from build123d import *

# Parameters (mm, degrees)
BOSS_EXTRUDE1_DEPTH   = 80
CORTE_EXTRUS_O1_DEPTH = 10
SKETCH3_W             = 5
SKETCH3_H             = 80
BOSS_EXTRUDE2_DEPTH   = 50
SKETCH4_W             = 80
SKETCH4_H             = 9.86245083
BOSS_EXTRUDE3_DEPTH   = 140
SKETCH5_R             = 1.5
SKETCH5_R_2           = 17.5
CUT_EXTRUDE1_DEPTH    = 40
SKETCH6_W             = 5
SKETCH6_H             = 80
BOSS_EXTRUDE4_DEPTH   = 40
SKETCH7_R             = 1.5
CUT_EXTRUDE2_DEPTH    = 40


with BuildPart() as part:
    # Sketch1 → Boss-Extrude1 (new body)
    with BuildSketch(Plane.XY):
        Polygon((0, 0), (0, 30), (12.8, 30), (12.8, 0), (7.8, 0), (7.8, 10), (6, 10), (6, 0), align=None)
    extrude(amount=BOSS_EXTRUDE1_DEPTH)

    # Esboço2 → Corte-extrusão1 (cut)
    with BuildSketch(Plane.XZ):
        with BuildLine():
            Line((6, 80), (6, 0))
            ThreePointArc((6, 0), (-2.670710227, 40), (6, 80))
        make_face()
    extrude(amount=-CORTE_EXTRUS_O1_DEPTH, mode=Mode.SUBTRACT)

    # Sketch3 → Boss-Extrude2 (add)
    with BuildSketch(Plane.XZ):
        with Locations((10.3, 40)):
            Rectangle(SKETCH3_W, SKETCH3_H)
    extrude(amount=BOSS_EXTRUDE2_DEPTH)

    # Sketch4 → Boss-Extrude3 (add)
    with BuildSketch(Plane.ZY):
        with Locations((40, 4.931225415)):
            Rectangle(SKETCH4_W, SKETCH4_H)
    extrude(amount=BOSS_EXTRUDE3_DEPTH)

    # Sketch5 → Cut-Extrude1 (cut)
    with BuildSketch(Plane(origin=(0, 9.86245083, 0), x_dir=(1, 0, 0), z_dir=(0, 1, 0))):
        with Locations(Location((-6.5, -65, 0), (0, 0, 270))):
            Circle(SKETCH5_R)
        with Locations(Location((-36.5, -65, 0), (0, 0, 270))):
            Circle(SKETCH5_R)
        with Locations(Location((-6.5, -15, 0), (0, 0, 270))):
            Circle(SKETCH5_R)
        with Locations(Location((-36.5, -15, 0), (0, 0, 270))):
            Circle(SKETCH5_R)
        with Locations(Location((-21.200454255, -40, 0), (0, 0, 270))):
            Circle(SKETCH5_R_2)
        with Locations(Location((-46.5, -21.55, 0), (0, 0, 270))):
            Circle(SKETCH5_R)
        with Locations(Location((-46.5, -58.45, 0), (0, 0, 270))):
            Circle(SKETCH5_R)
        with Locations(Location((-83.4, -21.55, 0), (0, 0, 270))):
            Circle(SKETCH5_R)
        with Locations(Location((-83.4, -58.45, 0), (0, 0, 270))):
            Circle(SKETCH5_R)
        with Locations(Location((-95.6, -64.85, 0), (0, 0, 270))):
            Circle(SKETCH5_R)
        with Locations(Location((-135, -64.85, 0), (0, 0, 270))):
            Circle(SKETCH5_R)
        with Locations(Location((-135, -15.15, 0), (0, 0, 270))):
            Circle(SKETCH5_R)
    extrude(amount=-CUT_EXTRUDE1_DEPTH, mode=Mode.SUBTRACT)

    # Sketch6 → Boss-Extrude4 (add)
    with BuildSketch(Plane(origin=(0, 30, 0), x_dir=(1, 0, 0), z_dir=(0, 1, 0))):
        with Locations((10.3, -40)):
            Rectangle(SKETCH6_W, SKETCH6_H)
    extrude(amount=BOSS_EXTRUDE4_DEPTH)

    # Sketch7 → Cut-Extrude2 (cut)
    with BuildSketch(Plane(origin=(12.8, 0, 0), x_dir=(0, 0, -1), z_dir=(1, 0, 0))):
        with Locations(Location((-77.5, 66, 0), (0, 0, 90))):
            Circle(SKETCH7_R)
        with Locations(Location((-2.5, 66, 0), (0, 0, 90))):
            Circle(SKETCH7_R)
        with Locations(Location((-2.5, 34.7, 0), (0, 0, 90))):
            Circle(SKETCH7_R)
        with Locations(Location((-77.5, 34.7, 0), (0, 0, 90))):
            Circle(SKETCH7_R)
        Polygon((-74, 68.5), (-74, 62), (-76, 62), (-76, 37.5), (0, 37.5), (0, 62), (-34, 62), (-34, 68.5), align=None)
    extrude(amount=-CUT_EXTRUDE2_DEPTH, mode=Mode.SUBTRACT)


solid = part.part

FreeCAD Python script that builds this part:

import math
import FreeCAD as App
import Part
import Sketcher
from FreeCAD import Vector

doc = App.newDocument("Part")
body = doc.addObject("PartDesign::Body", "Body")

# Sketch on XY plane
sketch1 = body.newObject("Sketcher::SketchObject", "Sketch")
sketch1.AttachmentSupport = (doc.getObject("XY_Plane"), [""])
sketch1.MapMode = "FlatFace"
sketch1.addGeometry([
    Part.LineSegment(Vector(0, 30, 0), Vector(0, 0, 0)),  # 0
    Part.LineSegment(Vector(0, 0, 0), Vector(6, 0, 0)),  # 1
    Part.LineSegment(Vector(6, 0, 0), Vector(6, 10, 0)),  # 2
    Part.LineSegment(Vector(6, 10, 0), Vector(7.8, 10, 0)),  # 3
    Part.LineSegment(Vector(7.8, 10, 0), Vector(7.8, 0, 0)),  # 4
    Part.LineSegment(Vector(7.8, 0, 0), Vector(12.8, 0, 0)),  # 5
    Part.LineSegment(Vector(12.8, 0, 0), Vector(12.8, 30, 0)),  # 6
    Part.LineSegment(Vector(12.8, 30, 0), Vector(0, 30, 0)),  # 7
], False)
sketch1.addConstraint([
    Sketcher.Constraint("Coincident", 0, 2, 1, 1),
    Sketcher.Constraint("Coincident", 1, 2, 2, 1),
    Sketcher.Constraint("Coincident", 2, 2, 3, 1),
    Sketcher.Constraint("Coincident", 3, 2, 4, 1),
    Sketcher.Constraint("Coincident", 4, 2, 5, 1),
    Sketcher.Constraint("Coincident", 5, 2, 6, 1),
    Sketcher.Constraint("Coincident", 6, 2, 7, 1),
    Sketcher.Constraint("Coincident", 7, 2, 0, 1),
    Sketcher.Constraint("Vertical", 0),
    Sketcher.Constraint("Horizontal", 1),
    Sketcher.Constraint("Vertical", 2),
    Sketcher.Constraint("Horizontal", 3),
    Sketcher.Constraint("Vertical", 4),
    Sketcher.Constraint("Horizontal", 5),
    Sketcher.Constraint("Vertical", 6),
    Sketcher.Constraint("Horizontal", 7),
    Sketcher.Constraint("Coincident", 0, 2, -1, 1),
    Sketcher.Constraint("PointOnObject", 4, 2, -1),
    Sketcher.Constraint("DistanceX", 1, 1, 1, 2, 6.0),
    Sketcher.Constraint("DistanceX", 5, 1, 5, 2, 5.0),
    Sketcher.Constraint("DistanceY", 0, 2, 0, 1, 30.0),
    Sketcher.Constraint("DistanceY", 2, 1, 2, 2, 10.0),
    Sketcher.Constraint("DistanceX", 3, 1, 3, 2, 1.8),
])
pad1 = body.newObject("PartDesign::Pad", "Pad")
pad1.Profile = sketch1
pad1.Length = 80

# Sketch on XZ plane
sketch2 = body.newObject("Sketcher::SketchObject", "Sketch001")
sketch2.AttachmentSupport = (doc.getObject("XZ_Plane"), [""])
sketch2.MapMode = "FlatFace"
sketch2.addGeometry([
    Part.LineSegment(Vector(6, 0, 0), Vector(6, 80, 0)),
    Part.ArcOfCircle(Part.Circle(Vector(94, 40, 0), Vector(0, 0, 1), 97), math.radians(156), math.radians(204)),
], False)
sketch2.addConstraint([
    Sketcher.Constraint("Coincident", 0, 1, 1, 2),
    Sketcher.Constraint("Coincident", 1, 1, 0, 2),
    Sketcher.Constraint("Vertical", 0),
    Sketcher.Constraint("PointOnObject", 0, 1, -1),
    Sketcher.Constraint("Radius", 1, 96.6),
    Sketcher.Constraint("DistanceY", 0, 1, 0, 2, 80.0),
    Sketcher.Constraint("DistanceX", -1, 1, 0, 1, 6.0),
])
pocket1 = body.newObject("PartDesign::Pocket", "Pocket")
pocket1.Profile = sketch2
pocket1.Length = 10

# Sketch on XZ plane
sketch3 = body.newObject("Sketcher::SketchObject", "Sketch002")
sketch3.AttachmentSupport = (doc.getObject("XZ_Plane"), [""])
sketch3.MapMode = "FlatFace"
sketch3.addGeometry([
    Part.LineSegment(Vector(8, 80, 0), Vector(8, 0, 0)),
    Part.LineSegment(Vector(8, 0, 0), Vector(13, 0, 0)),
    Part.LineSegment(Vector(13, 0, 0), Vector(13, 80, 0)),
    Part.LineSegment(Vector(13, 80, 0), Vector(8, 80, 0)),
], False)
sketch3.addConstraint([
    Sketcher.Constraint("Coincident", 0, 2, 1, 1),
    Sketcher.Constraint("Coincident", 1, 2, 2, 1),
    Sketcher.Constraint("Coincident", 2, 2, 3, 1),
    Sketcher.Constraint("Coincident", 3, 2, 0, 1),
    Sketcher.Constraint("Vertical", 0),
    Sketcher.Constraint("Horizontal", 1),
    Sketcher.Constraint("Vertical", 2),
    Sketcher.Constraint("Horizontal", 3),
    Sketcher.Constraint("PointOnObject", 0, 2, -1),
    Sketcher.Constraint("DistanceX", 1, 1, 1, 2, 5.0),
    Sketcher.Constraint("DistanceY", 0, 2, 0, 1, 80.0),
    Sketcher.Constraint("DistanceX", -1, 1, 0, 2, 7.8),
])
pad2 = body.newObject("PartDesign::Pad", "Pad001")
pad2.Profile = sketch3
pad2.Length = 50

# Sketch on YZ plane
sketch4 = body.newObject("Sketcher::SketchObject", "Sketch003")
sketch4.AttachmentSupport = (doc.getObject("YZ_Plane"), [""])
sketch4.MapMode = "FlatFace"
sketch4.addGeometry([
    Part.LineSegment(Vector(10, 0, 0), Vector(0, 0, 0)),
    Part.LineSegment(Vector(0, 0, 0), Vector(0, 80, 0)),
    Part.LineSegment(Vector(0, 80, 0), Vector(10, 80, 0)),
    Part.LineSegment(Vector(10, 80, 0), Vector(10, 0, 0)),
], False)
sketch4.addConstraint([
    Sketcher.Constraint("Coincident", 0, 2, 1, 1),
    Sketcher.Constraint("Coincident", 1, 2, 2, 1),
    Sketcher.Constraint("Coincident", 2, 2, 3, 1),
    Sketcher.Constraint("Coincident", 3, 2, 0, 1),
    Sketcher.Constraint("Horizontal", 0),
    Sketcher.Constraint("Vertical", 1),
    Sketcher.Constraint("Horizontal", 2),
    Sketcher.Constraint("Vertical", 3),
    Sketcher.Constraint("Coincident", 0, 2, -1, 1),
    Sketcher.Constraint("DistanceY", 1, 1, 1, 2, 80.0),
    Sketcher.Constraint("DistanceX", 0, 2, 0, 1, 9.862451),
])
pad3 = body.newObject("PartDesign::Pad", "Pad002")
pad3.Profile = sketch4
pad3.Length = 140
pad3.Reversed = True

# Sketch on XZ plane
sketch5 = body.newObject("Sketcher::SketchObject", "Sketch004")
sketch5.AttachmentSupport = (doc.getObject("XZ_Plane"), [""])
sketch5.MapMode = "FlatFace"
sketch5.AttachmentOffset = App.Placement(Vector(0, 0, -9.862451), App.Rotation())
sketch5.addGeometry([
    Part.Circle(Vector(-6.5, 65, 0), Vector(0, 0, 1), 1.5),  # 0
    Part.Circle(Vector(-36.5, 65, 0), Vector(0, 0, 1), 1.5),  # 1
    Part.Circle(Vector(-6.5, 15, 0), Vector(0, 0, 1), 1.5),  # 2
    Part.Circle(Vector(-36.5, 15, 0), Vector(0, 0, 1), 1.5),  # 3
    Part.Circle(Vector(-21.2, 40, 0), Vector(0, 0, 1), 17.5),  # 4
    Part.Circle(Vector(-46.5, 21.6, 0), Vector(0, 0, 1), 1.5),  # 5
    Part.Circle(Vector(-46.5, 58.5, 0), Vector(0, 0, 1), 1.5),  # 6
    Part.Circle(Vector(-83.4, 21.6, 0), Vector(0, 0, 1), 1.5),  # 7
    Part.Circle(Vector(-83.4, 58.5, 0), Vector(0, 0, 1), 1.5),  # 8
    Part.Circle(Vector(-95.6, 64.8, 0), Vector(0, 0, 1), 1.5),  # 9
    Part.Circle(Vector(-135, 64.8, 0), Vector(0, 0, 1), 1.5),  # 10
    Part.Circle(Vector(-135, 15.2, 0), Vector(0, 0, 1), 1.5),  # 11
], False)
sketch5.addConstraint([
    Sketcher.Constraint("Equal", 0, 1),
    Sketcher.Constraint("Equal", 1, 2),
    Sketcher.Constraint("Equal", 2, 3),
    Sketcher.Constraint("Equal", 3, 5),
    Sketcher.Constraint("Equal", 5, 6),
    Sketcher.Constraint("Equal", 6, 7),
    Sketcher.Constraint("Equal", 7, 8),
    Sketcher.Constraint("Equal", 8, 9),
    Sketcher.Constraint("Equal", 9, 10),
    Sketcher.Constraint("Equal", 10, 11),
    Sketcher.Constraint("Horizontal", 0, 3, 1, 3),
    Sketcher.Constraint("Horizontal", 2, 3, 3, 3),
    Sketcher.Constraint("Horizontal", 5, 3, 7, 3),
    Sketcher.Constraint("Horizontal", 6, 3, 8, 3),
    Sketcher.Constraint("Horizontal", 9, 3, 10, 3),
    Sketcher.Constraint("Vertical", 0, 3, 2, 3),
    Sketcher.Constraint("Vertical", 1, 3, 3, 3),
    Sketcher.Constraint("Vertical", 5, 3, 6, 3),
    Sketcher.Constraint("Vertical", 7, 3, 8, 3),
    Sketcher.Constraint("Vertical", 10, 3, 11, 3),
    Sketcher.Constraint("Diameter", 0, 3.0),
    Sketcher.Constraint("Diameter", 4, 35.0),
    Sketcher.Constraint("DistanceY", -1, 1, 0, 3, 65.0),
    Sketcher.Constraint("DistanceY", -1, 1, 2, 3, 15.0),
    Sketcher.Constraint("DistanceY", -1, 1, 4, 3, 40.0),
    Sketcher.Constraint("DistanceX", 10, 3, -1, 1, 135.0),
    Sketcher.Constraint("DistanceX", 1, 3, 0, 3, 30.0),
    Sketcher.Constraint("DistanceX", 5, 3, 3, 3, 10.0),
    Sketcher.Constraint("DistanceX", 0, 3, -1, 1, 6.5),
    Sketcher.Constraint("DistanceX", 7, 3, -1, 1, 83.4),
    Sketcher.Constraint("DistanceX", 9, 3, -1, 1, 95.6),
    Sketcher.Constraint("DistanceY", 5, 3, 6, 3, 36.9),
    Sketcher.Constraint("DistanceY", 8, 3, 9, 3, 6.4),
    Sketcher.Constraint("DistanceY", 11, 3, 10, 3, 49.7),
    Sketcher.Constraint("DistanceY", -1, 1, 5, 3, 21.55),
    Sketcher.Constraint("DistanceX", 4, 3, -1, 1, 21.200454),
])
pocket2 = body.newObject("PartDesign::Pocket", "Pocket001")
pocket2.Profile = sketch5
pocket2.Length = 40
pocket2.Reversed = True

# Sketch on XZ plane
sketch6 = body.newObject("Sketcher::SketchObject", "Sketch005")
sketch6.AttachmentSupport = (doc.getObject("XZ_Plane"), [""])
sketch6.MapMode = "FlatFace"
sketch6.AttachmentOffset = App.Placement(Vector(0, 0, -30), App.Rotation())
sketch6.addGeometry([
    Part.LineSegment(Vector(8, 0, 0), Vector(8, 80, 0)),
    Part.LineSegment(Vector(8, 80, 0), Vector(13, 80, 0)),
    Part.LineSegment(Vector(13, 80, 0), Vector(13, 0, 0)),
    Part.LineSegment(Vector(13, 0, 0), Vector(8, 0, 0)),
], False)
sketch6.addConstraint([
    Sketcher.Constraint("Coincident", 0, 2, 1, 1),
    Sketcher.Constraint("Coincident", 1, 2, 2, 1),
    Sketcher.Constraint("Coincident", 2, 2, 3, 1),
    Sketcher.Constraint("Coincident", 3, 2, 0, 1),
    Sketcher.Constraint("Vertical", 0),
    Sketcher.Constraint("Horizontal", 1),
    Sketcher.Constraint("Vertical", 2),
    Sketcher.Constraint("Horizontal", 3),
    Sketcher.Constraint("PointOnObject", 2, 2, -1),
    Sketcher.Constraint("DistanceX", 1, 1, 1, 2, 5.0),
    Sketcher.Constraint("DistanceY", 0, 1, 0, 2, 80.0),
    Sketcher.Constraint("DistanceX", -1, 1, 0, 2, 7.8),
])
pad4 = body.newObject("PartDesign::Pad", "Pad003")
pad4.Profile = sketch6
pad4.Length = 40
pad4.Reversed = True

# Sketch on YZ plane
sketch7 = body.newObject("Sketcher::SketchObject", "Sketch006")
sketch7.AttachmentSupport = (doc.getObject("YZ_Plane"), [""])
sketch7.MapMode = "FlatFace"
sketch7.AttachmentOffset = App.Placement(Vector(0, 0, 12.8), App.Rotation())
sketch7.addGeometry([
    Part.Circle(Vector(66, 77.5, 0), Vector(0, 0, 1), 1.5),  # 0
    Part.Circle(Vector(66, 2.5, 0), Vector(0, 0, 1), 1.5),  # 1
    Part.Circle(Vector(34.7, 2.5, 0), Vector(0, 0, 1), 1.5),  # 2
    Part.Circle(Vector(34.7, 77.5, 0), Vector(0, 0, 1), 1.5),  # 3
    Part.LineSegment(Vector(68.5, 74, 0), Vector(62, 74, 0)),  # 4
    Part.LineSegment(Vector(62, 74, 0), Vector(62, 76, 0)),  # 5
    Part.LineSegment(Vector(62, 76, 0), Vector(37.5, 76, 0)),  # 6
    Part.LineSegment(Vector(37.5, 76, 0), Vector(37.5, 0, 0)),  # 7
    Part.LineSegment(Vector(37.5, 0, 0), Vector(62, 0, 0)),  # 8
    Part.LineSegment(Vector(62, 0, 0), Vector(62, 34, 0)),  # 9
    Part.LineSegment(Vector(62, 34, 0), Vector(68.5, 34, 0)),  # 10
    Part.LineSegment(Vector(68.5, 34, 0), Vector(68.5, 74, 0)),  # 11
], False)
sketch7.addConstraint([
    Sketcher.Constraint("Coincident", 4, 2, 5, 1),
    Sketcher.Constraint("Coincident", 5, 2, 6, 1),
    Sketcher.Constraint("Coincident", 6, 2, 7, 1),
    Sketcher.Constraint("Coincident", 7, 2, 8, 1),
    Sketcher.Constraint("Coincident", 8, 2, 9, 1),
    Sketcher.Constraint("Coincident", 9, 2, 10, 1),
    Sketcher.Constraint("Coincident", 10, 2, 11, 1),
    Sketcher.Constraint("Coincident", 11, 2, 4, 1),
    Sketcher.Constraint("Horizontal", 4),
    Sketcher.Constraint("Vertical", 5),
    Sketcher.Constraint("Horizontal", 6),
    Sketcher.Constraint("Vertical", 7),
    Sketcher.Constraint("Horizontal", 8),
    Sketcher.Constraint("Vertical", 9),
    Sketcher.Constraint("Horizontal", 10),
    Sketcher.Constraint("Vertical", 11),
    Sketcher.Constraint("Equal", 0, 1),
    Sketcher.Constraint("Equal", 1, 2),
    Sketcher.Constraint("Equal", 2, 3),
    Sketcher.Constraint("PointOnObject", 7, 2, -1),
    Sketcher.Constraint("Horizontal", 1, 3, 2, 3),
    Sketcher.Constraint("Horizontal", 0, 3, 3, 3),
    Sketcher.Constraint("Vertical", 0, 3, 1, 3),
    Sketcher.Constraint("Vertical", 2, 3, 3, 3),
    Sketcher.Constraint("Vertical", 5, 2, 8, 2),
    Sketcher.Constraint("Diameter", 0, 3.0),
    Sketcher.Constraint("DistanceY", 5, 1, 5, 2, 2.0),
    Sketcher.Constraint("DistanceY", 7, 2, 7, 1, 76.0),
    Sketcher.Constraint("DistanceY", 9, 1, 9, 2, 34.0),
    Sketcher.Constraint("DistanceX", 4, 2, 4, 1, 6.5),
    Sketcher.Constraint("DistanceX", 6, 2, 6, 1, 24.5),
    Sketcher.Constraint("DistanceX", -1, 1, 0, 3, 66.0),
    Sketcher.Constraint("DistanceX", -1, 1, 4, 2, 62.0),
    Sketcher.Constraint("DistanceY", 1, 3, 0, 3, 75.0),
    Sketcher.Constraint("DistanceY", -1, 1, 0, 3, 77.5),
    Sketcher.Constraint("DistanceX", -1, 1, 2, 3, 34.7),
])
pocket3 = body.newObject("PartDesign::Pocket", "Pocket002")
pocket3.Profile = sketch7
pocket3.Length = 40

doc.recompute()
